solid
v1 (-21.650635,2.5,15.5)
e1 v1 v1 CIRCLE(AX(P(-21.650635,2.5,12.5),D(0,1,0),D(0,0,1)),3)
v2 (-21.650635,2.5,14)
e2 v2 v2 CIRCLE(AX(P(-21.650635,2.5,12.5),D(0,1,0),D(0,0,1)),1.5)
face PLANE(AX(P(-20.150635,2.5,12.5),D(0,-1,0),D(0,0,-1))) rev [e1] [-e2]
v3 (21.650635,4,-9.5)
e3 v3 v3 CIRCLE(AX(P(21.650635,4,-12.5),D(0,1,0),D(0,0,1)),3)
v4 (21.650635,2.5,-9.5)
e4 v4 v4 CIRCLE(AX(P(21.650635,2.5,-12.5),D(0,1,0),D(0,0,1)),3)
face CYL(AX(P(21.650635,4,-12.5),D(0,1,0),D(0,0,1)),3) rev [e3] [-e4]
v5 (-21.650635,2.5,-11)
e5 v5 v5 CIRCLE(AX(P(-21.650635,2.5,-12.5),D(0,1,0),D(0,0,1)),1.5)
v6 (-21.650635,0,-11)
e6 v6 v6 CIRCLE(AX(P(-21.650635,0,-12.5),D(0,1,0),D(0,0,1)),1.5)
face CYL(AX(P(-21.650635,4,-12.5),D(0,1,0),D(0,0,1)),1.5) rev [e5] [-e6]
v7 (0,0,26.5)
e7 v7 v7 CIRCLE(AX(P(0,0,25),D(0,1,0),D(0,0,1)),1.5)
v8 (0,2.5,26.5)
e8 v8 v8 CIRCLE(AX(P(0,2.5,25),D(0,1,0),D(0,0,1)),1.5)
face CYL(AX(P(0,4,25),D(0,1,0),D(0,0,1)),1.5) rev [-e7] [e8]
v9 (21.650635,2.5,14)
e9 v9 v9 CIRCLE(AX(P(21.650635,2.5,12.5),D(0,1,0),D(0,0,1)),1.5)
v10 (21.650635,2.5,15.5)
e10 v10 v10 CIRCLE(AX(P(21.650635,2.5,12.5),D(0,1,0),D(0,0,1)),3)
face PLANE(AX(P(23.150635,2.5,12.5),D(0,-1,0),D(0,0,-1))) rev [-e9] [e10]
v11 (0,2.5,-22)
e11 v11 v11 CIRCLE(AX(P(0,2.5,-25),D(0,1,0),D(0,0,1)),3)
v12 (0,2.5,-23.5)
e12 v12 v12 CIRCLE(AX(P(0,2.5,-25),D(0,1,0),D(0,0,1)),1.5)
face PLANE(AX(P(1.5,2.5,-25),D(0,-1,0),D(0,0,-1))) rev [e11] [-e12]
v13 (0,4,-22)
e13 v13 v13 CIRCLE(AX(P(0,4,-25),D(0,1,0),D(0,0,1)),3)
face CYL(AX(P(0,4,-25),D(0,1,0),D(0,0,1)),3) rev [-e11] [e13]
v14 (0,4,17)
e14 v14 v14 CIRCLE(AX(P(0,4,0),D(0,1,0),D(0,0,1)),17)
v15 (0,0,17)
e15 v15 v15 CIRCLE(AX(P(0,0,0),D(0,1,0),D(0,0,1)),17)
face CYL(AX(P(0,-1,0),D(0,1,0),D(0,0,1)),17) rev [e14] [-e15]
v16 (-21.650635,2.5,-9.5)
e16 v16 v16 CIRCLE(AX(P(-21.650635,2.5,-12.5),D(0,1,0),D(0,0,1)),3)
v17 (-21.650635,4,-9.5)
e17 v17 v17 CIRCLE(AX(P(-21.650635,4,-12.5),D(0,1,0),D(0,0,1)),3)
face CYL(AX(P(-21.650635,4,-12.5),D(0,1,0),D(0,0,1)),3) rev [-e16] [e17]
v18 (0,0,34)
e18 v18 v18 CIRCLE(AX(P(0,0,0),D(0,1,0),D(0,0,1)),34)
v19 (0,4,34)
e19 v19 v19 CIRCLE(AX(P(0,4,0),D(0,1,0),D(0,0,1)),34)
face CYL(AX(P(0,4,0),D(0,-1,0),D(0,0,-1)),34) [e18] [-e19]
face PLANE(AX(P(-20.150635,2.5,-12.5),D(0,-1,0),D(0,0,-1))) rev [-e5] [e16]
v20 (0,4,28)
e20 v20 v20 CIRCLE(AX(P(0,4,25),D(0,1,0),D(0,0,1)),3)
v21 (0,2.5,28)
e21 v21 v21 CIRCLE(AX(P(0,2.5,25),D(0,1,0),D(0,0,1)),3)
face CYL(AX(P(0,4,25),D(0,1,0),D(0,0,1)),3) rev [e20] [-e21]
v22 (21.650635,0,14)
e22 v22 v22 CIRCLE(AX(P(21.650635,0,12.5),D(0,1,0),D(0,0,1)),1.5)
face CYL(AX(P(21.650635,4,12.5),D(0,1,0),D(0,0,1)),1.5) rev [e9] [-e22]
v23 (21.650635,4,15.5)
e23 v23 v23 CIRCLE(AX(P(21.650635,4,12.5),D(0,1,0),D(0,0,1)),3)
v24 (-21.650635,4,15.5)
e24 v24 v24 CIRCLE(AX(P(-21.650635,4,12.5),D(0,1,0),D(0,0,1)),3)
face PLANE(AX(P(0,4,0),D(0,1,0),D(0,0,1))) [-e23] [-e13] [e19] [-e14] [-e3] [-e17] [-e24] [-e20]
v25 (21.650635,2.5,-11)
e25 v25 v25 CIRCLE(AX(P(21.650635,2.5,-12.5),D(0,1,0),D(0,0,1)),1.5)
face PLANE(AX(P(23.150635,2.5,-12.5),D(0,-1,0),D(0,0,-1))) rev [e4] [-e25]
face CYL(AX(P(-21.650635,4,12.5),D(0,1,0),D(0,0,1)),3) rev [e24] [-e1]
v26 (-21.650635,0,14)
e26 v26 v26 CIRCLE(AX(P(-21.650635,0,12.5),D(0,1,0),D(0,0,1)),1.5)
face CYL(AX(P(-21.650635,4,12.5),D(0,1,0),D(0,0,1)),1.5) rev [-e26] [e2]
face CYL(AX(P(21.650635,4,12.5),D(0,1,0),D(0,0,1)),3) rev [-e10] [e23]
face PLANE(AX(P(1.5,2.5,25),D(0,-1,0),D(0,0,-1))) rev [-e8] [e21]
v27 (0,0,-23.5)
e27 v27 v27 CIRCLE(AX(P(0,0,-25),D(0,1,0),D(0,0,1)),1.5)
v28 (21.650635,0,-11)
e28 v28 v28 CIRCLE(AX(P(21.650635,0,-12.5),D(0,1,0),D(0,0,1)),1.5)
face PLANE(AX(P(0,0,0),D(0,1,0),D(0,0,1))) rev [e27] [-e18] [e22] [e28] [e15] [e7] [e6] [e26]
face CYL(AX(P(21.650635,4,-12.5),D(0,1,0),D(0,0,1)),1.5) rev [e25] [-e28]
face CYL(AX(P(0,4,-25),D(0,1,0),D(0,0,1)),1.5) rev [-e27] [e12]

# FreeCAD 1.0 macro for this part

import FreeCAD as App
import Part
import Sketcher

V = App.Vector

doc = App.newDocument("Part")
body = doc.addObject("PartDesign::Body", "Body")

# Sketch on XZ plane
sketch1 = body.newObject("Sketcher::SketchObject", "Sketch")
sketch1.AttachmentSupport = (doc.getObject("XZ_Plane"), [""])
sketch1.MapMode = "FlatFace"
sketch1.addGeometry(Part.Circle(V(0, 0, 0), V(0, 0, 1), 34), False)
sketch1.addConstraint([
    Sketcher.Constraint("Coincident", 0, 3, -1, 1),
    Sketcher.Constraint("Diameter", 0, 68.0),
])
pad1 = body.newObject("PartDesign::Pad", "Pad")
pad1.Profile = sketch1
pad1.Length = 4
pad1.Reversed = True

# Sketch on XZ plane
sketch2 = body.newObject("Sketcher::SketchObject", "Sketch001")
sketch2.AttachmentSupport = (doc.getObject("XZ_Plane"), [""])
sketch2.MapMode = "FlatFace"
sketch2.AttachmentOffset = App.Placement(V(0, 0, -4), App.Rotation())
sketch2.addGeometry([
    Part.Circle(V(0, -25, 0), V(0, 0, 1), 1.5),  # 0
    Part.Circle(V(21.7, -12.5, 0), V(0, 0, 1), 1.5),  # 1
    Part.Circle(V(21.7, 12.5, 0), V(0, 0, 1), 1.5),  # 2
    Part.Circle(V(0, 25, 0), V(0, 0, 1), 1.5),  # 3
    Part.Circle(V(-21.7, 12.5, 0), V(0, 0, 1), 1.5),  # 4
    Part.Circle(V(-21.7, -12.5, 0), V(0, 0, 1), 1.5),  # 5
], False)
sketch2.addConstraint([
    Sketcher.Constraint("Equal", 0, 1),
    Sketcher.Constraint("Equal", 1, 2),
    Sketcher.Constraint("Equal", 2, 3),
    Sketcher.Constraint("Equal", 3, 4),
    Sketcher.Constraint("Equal", 4, 5),
    Sketcher.Constraint("Symmetric", 0, 3, 3, 3, -1, 1),
    Sketcher.Constraint("Symmetric", 1, 3, 4, 3, -1, 1),
    Sketcher.Constraint("Symmetric", 2, 3, 5, 3, -1, 1),
    Sketcher.Constraint("Symmetric", 2, 3, 4, 3, -2),
    Sketcher.Constraint("PointOnObject", 0, 3, -2),
    Sketcher.Constraint("Diameter", 0, 3.0),
    Sketcher.Constraint("DistanceY", 0, 3, -1, 1, 25.0),
    Sketcher.Constraint("DistanceY", 1, 3, 2, 3, 25.0),
    Sketcher.Constraint("DistanceX", 4, 3, 2, 3, 43.30127),
])
doc.recompute()
hole = body.newObject("PartDesign::Hole", "Hole")
hole.Profile = sketch2
hole.ThreadType = "None"
hole.Diameter = 3
hole.DepthType = "Dimension"
hole.Depth = 5
hole.DrillPoint = "Flat"
hole.HoleCutType = "Counterbore"
hole.HoleCutDiameter = 6
hole.HoleCutDepth = 1.5
hole.Reversed = True

# Sketch on XZ plane
sketch3 = body.newObject("Sketcher::SketchObject", "Sketch002")
sketch3.AttachmentSupport = (doc.getObject("XZ_Plane"), [""])
sketch3.MapMode = "FlatFace"
sketch3.AttachmentOffset = App.Placement(V(0, 0, -4), App.Rotation())
sketch3.addGeometry(Part.Circle(V(0, 0, 0), V(0, 0, 1), 17), False)
sketch3.addConstraint([
    Sketcher.Constraint("Coincident", 0, 3, -1, 1),
    Sketcher.Constraint("Diameter", 0, 34.0),
])
pocket1 = body.newObject("PartDesign::Pocket", "Pocket")
pocket1.Profile = sketch3
pocket1.Length = 5
pocket1.Reversed = True

doc.recompute()
